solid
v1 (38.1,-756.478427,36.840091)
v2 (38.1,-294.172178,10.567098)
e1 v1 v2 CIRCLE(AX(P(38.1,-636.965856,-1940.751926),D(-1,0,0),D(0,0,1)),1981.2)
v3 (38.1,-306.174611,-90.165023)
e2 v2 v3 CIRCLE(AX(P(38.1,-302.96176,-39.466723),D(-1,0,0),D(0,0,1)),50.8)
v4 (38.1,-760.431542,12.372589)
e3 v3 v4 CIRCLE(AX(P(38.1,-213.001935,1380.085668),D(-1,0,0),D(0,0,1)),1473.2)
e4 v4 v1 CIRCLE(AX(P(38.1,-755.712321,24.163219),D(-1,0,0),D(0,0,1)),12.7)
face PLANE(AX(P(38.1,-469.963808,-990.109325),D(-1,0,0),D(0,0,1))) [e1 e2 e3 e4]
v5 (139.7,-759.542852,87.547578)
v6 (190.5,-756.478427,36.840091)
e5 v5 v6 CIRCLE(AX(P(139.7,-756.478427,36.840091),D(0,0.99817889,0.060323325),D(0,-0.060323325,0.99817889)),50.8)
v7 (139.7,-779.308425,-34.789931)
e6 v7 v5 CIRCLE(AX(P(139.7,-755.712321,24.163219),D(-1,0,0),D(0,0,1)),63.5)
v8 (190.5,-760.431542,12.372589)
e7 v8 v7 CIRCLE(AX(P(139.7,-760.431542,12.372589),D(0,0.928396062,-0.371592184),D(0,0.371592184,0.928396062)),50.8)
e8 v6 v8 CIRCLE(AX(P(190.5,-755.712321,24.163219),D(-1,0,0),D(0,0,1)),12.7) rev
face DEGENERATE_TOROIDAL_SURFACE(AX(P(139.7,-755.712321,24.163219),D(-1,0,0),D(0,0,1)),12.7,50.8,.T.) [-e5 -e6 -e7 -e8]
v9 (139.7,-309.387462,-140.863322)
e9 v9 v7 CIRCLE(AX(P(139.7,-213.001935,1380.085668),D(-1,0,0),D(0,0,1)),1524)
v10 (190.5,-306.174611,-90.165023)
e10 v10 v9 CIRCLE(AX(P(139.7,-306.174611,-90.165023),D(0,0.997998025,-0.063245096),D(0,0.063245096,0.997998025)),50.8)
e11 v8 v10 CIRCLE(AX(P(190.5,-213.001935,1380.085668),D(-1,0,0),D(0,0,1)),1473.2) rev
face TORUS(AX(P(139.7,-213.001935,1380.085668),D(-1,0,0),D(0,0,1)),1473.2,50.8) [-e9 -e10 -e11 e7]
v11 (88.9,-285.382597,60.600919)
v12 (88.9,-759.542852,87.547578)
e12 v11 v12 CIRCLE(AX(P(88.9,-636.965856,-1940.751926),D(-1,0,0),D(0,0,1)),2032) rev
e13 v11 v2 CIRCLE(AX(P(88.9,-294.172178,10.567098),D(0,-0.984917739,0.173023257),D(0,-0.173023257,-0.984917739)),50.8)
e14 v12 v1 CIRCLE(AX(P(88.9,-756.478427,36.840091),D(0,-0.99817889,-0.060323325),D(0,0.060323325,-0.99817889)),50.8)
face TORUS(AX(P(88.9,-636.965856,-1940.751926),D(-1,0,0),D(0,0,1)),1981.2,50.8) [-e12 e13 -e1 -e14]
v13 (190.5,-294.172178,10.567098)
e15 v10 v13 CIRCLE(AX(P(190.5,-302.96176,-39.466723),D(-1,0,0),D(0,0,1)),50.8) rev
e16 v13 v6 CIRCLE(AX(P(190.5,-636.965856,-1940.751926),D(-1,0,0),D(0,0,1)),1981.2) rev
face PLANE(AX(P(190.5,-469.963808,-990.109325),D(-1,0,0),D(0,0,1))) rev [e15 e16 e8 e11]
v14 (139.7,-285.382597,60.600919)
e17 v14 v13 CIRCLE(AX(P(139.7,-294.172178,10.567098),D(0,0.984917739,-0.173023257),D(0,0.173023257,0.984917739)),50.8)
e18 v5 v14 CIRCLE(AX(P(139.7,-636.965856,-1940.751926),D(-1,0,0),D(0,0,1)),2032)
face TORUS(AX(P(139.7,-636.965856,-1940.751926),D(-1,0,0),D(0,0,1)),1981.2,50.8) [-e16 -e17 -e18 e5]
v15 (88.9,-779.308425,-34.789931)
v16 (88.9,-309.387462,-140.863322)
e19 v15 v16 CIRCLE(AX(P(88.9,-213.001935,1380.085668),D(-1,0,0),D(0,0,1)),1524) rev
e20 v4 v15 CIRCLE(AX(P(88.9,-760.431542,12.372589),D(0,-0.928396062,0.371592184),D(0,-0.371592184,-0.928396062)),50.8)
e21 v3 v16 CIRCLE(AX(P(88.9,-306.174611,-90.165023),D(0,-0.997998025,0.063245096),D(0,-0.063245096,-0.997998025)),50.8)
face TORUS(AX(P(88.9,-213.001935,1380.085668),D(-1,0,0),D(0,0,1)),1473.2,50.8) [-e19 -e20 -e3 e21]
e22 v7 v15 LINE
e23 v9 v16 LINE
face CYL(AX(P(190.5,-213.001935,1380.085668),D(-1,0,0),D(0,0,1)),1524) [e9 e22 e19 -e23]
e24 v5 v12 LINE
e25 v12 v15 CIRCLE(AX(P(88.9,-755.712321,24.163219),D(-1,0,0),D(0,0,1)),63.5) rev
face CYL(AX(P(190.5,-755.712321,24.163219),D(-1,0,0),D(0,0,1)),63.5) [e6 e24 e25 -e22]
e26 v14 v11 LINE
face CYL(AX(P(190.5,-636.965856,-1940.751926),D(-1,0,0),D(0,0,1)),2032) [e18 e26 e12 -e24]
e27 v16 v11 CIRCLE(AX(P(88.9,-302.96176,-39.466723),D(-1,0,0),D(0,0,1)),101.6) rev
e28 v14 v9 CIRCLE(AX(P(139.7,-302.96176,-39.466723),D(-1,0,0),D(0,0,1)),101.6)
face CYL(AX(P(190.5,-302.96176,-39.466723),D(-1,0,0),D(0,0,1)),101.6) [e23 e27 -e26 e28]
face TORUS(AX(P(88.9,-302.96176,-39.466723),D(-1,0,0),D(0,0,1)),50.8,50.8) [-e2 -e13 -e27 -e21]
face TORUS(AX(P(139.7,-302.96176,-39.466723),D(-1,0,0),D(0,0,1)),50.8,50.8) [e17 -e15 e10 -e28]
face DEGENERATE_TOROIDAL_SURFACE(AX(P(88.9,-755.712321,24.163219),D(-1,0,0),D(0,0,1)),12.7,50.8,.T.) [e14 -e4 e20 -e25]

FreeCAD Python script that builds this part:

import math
import FreeCAD as App
import Part
import Sketcher
from FreeCAD import Vector
Q = App.Units.Quantity


def edges_at(feature, points):
    """Names of the edges that pass closest to the given points."""
    edges = feature.Shape.Edges
    near = lambda p: min(range(len(edges)), key=lambda i: edges[i].distToShape(Part.Vertex(*p))[0])
    return sorted({f"Edge{near(p) + 1}" for p in points})

doc = App.newDocument("Part")
params = doc.addObject("Spreadsheet::Sheet", "Params")
for row, (alias, value) in enumerate([
    ("sketch1_radius", "4 in"),
    ("sketch1_radius2", "80 in"),
    ("sketch1_radius3", "60 in"),
    ("sketch1_radius4", "2.5 in"),
    ("pad1_length", "6 in"),
    ("fillet_radius", "2 in"),
], start=1):
    params.set(f"A{row}", alias)
    params.set(f"B{row}", "=" + value)
    params.setAlias(f"B{row}", alias)

body = doc.addObject("PartDesign::Body", "Body")

sketch1 = body.newObject("Sketcher::SketchObject", "Sketch")
sketch1.AttachmentSupport = (doc.getObject("YZ_Plane"), [""])
sketch1.MapMode = "FlatFace"
sketch1.AttachmentOffset = App.Placement(Vector(0, 0, 4.5 * 25.4), App.Rotation())
sketch1.addGeometry(Part.ArcOfCircle(Part.Circle(Vector(-302.96176, -39.466723, 0), Vector(0, 0, 1), 101.6), math.radians(-93.626097), math.radians(80.036356)), False)
sketch1.addGeometry(Part.ArcOfCircle(Part.Circle(Vector(-636.965856, -1940.751926, 0), Vector(0, 0, 1), 2032), math.radians(80.036356), math.radians(93.458372)), False)
sketch1.addGeometry(Part.ArcOfCircle(Part.Circle(Vector(-755.712321, 24.163219, 0), Vector(0, 0, 1), 63.5), math.radians(93.458372), math.radians(248.186155)), False)
sketch1.addGeometry(Part.ArcOfCircle(Part.Circle(Vector(-213.001935, 1380.085668, 0), Vector(0, 0, 1), 1524), math.radians(-111.813845), math.radians(-93.626097)), False)
sketch1.addConstraint(Sketcher.Constraint("Tangent", 0, 2, 1, 1))
sketch1.addConstraint(Sketcher.Constraint("Tangent", 1, 2, 2, 1))
sketch1.addConstraint(Sketcher.Constraint("Tangent", 2, 2, 3, 1))
sketch1.addConstraint(Sketcher.Constraint("Tangent", 3, 2, 0, 1))
sketch1.addConstraint(Sketcher.Constraint("Radius", 0, Q("4 in")))
sketch1.addConstraint(Sketcher.Constraint("Radius", 1, Q("80 in")))
sketch1.addConstraint(Sketcher.Constraint("Radius", 3, Q("60 in")))
sketch1.addConstraint(Sketcher.Constraint("Radius", 2, Q("2.5 in")))
sketch1.addConstraint(Sketcher.Constraint("DistanceY", 3, 2, -1, 1, Q("5.5458001 in")))
sketch1.addConstraint(Sketcher.Constraint("DistanceY", 2, 3, 0, 2, Q("36.437701 mm")))
sketch1.addConstraint(Sketcher.Constraint("DistanceY", 2, 2, 3, 3, Q("1414.875599 mm")))
sketch1.addConstraint(Sketcher.Constraint("DistanceX", 0, 3, -1, 1, Q("302.96176 mm")))
sketch1.setExpression("Constraints[4]", "Params.sketch1_radius")
sketch1.setExpression("Constraints[5]", "Params.sketch1_radius2")
sketch1.setExpression("Constraints[6]", "Params.sketch1_radius3")
sketch1.setExpression("Constraints[7]", "Params.sketch1_radius4")
pad1 = body.newObject("PartDesign::Pad", "Pad")
pad1.Profile = sketch1
pad1.setExpression("Length", "Params.pad1_length")
pad1.Midplane = True
doc.recompute()

fillet = body.newObject("PartDesign::Fillet", "Fillet")
fillet.Base = (pad1, edges_at(pad1, [
    (38.1, -818.399, 34.291),
    (190.5, -818.399, 34.291),
    (38.1, -521.673, 87.975),
    (190.5, -521.673, 87.975),
    (38.1, -202.075, -51.488),
    (190.5, -202.075, -51.488),
    (190.5, -548.566, -106.512),
    (38.1, -548.566, -106.512),
]))
fillet.setExpression("Radius", "Params.fillet_radius")

doc.recompute()
